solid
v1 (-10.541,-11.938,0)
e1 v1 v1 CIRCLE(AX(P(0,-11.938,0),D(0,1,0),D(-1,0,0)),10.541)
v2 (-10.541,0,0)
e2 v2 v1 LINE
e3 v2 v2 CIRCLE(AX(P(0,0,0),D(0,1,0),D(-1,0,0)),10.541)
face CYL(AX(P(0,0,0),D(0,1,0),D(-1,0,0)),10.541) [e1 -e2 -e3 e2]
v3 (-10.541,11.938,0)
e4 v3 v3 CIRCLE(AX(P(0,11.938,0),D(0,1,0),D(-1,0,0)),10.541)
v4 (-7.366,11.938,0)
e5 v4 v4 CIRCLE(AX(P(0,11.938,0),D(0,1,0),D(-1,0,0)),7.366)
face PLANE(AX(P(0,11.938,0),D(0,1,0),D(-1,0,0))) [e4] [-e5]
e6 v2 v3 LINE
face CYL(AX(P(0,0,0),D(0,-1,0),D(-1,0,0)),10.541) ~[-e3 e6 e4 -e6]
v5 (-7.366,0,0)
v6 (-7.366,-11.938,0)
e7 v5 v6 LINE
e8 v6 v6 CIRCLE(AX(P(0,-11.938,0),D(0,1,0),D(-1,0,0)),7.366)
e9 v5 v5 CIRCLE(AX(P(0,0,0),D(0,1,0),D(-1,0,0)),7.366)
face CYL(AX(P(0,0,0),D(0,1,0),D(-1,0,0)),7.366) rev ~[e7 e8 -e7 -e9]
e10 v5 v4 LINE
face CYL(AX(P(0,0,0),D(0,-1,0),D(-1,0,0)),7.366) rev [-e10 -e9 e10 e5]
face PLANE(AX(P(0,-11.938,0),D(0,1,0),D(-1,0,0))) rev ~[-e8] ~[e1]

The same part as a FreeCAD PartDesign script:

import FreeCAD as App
import Part
import Sketcher
Q = App.Units.Quantity

doc = App.newDocument("Part")
body = doc.addObject("PartDesign::Body", "Body")

# Sketch on XZ plane
sketch1 = doc.addObject("Sketcher::SketchObject", "Sketch")
body.addObject(sketch1)
sketch1.AttachmentSupport = (doc.XZ_Plane, [""])
sketch1.MapMode = "FlatFace"
sketch1.addGeometry(Part.Circle(App.Vector(0, 0, 0), App.Vector(0, 0, 1), 10.541), False)
sketch1.addGeometry(Part.Circle(App.Vector(0, 0, 0), App.Vector(0, 0, 1), 7.366), False)
sketch1.addConstraint(Sketcher.Constraint("Coincident", 0, 3, -1, 1))
sketch1.addConstraint(Sketcher.Constraint("Coincident", 1, 3, -1, 1))
sketch1.addConstraint(Sketcher.Constraint("Diameter", 1, Q("0.58 in")))
sketch1.addConstraint(Sketcher.Constraint("Diameter", 0, Q("0.83 in")))
pad1 = doc.addObject("PartDesign::Pad", "Pad")
body.addObject(pad1)
pad1.Profile = sketch1
pad1.Length = Q("0.94 in")
pad1.Midplane = True

doc.recompute()
